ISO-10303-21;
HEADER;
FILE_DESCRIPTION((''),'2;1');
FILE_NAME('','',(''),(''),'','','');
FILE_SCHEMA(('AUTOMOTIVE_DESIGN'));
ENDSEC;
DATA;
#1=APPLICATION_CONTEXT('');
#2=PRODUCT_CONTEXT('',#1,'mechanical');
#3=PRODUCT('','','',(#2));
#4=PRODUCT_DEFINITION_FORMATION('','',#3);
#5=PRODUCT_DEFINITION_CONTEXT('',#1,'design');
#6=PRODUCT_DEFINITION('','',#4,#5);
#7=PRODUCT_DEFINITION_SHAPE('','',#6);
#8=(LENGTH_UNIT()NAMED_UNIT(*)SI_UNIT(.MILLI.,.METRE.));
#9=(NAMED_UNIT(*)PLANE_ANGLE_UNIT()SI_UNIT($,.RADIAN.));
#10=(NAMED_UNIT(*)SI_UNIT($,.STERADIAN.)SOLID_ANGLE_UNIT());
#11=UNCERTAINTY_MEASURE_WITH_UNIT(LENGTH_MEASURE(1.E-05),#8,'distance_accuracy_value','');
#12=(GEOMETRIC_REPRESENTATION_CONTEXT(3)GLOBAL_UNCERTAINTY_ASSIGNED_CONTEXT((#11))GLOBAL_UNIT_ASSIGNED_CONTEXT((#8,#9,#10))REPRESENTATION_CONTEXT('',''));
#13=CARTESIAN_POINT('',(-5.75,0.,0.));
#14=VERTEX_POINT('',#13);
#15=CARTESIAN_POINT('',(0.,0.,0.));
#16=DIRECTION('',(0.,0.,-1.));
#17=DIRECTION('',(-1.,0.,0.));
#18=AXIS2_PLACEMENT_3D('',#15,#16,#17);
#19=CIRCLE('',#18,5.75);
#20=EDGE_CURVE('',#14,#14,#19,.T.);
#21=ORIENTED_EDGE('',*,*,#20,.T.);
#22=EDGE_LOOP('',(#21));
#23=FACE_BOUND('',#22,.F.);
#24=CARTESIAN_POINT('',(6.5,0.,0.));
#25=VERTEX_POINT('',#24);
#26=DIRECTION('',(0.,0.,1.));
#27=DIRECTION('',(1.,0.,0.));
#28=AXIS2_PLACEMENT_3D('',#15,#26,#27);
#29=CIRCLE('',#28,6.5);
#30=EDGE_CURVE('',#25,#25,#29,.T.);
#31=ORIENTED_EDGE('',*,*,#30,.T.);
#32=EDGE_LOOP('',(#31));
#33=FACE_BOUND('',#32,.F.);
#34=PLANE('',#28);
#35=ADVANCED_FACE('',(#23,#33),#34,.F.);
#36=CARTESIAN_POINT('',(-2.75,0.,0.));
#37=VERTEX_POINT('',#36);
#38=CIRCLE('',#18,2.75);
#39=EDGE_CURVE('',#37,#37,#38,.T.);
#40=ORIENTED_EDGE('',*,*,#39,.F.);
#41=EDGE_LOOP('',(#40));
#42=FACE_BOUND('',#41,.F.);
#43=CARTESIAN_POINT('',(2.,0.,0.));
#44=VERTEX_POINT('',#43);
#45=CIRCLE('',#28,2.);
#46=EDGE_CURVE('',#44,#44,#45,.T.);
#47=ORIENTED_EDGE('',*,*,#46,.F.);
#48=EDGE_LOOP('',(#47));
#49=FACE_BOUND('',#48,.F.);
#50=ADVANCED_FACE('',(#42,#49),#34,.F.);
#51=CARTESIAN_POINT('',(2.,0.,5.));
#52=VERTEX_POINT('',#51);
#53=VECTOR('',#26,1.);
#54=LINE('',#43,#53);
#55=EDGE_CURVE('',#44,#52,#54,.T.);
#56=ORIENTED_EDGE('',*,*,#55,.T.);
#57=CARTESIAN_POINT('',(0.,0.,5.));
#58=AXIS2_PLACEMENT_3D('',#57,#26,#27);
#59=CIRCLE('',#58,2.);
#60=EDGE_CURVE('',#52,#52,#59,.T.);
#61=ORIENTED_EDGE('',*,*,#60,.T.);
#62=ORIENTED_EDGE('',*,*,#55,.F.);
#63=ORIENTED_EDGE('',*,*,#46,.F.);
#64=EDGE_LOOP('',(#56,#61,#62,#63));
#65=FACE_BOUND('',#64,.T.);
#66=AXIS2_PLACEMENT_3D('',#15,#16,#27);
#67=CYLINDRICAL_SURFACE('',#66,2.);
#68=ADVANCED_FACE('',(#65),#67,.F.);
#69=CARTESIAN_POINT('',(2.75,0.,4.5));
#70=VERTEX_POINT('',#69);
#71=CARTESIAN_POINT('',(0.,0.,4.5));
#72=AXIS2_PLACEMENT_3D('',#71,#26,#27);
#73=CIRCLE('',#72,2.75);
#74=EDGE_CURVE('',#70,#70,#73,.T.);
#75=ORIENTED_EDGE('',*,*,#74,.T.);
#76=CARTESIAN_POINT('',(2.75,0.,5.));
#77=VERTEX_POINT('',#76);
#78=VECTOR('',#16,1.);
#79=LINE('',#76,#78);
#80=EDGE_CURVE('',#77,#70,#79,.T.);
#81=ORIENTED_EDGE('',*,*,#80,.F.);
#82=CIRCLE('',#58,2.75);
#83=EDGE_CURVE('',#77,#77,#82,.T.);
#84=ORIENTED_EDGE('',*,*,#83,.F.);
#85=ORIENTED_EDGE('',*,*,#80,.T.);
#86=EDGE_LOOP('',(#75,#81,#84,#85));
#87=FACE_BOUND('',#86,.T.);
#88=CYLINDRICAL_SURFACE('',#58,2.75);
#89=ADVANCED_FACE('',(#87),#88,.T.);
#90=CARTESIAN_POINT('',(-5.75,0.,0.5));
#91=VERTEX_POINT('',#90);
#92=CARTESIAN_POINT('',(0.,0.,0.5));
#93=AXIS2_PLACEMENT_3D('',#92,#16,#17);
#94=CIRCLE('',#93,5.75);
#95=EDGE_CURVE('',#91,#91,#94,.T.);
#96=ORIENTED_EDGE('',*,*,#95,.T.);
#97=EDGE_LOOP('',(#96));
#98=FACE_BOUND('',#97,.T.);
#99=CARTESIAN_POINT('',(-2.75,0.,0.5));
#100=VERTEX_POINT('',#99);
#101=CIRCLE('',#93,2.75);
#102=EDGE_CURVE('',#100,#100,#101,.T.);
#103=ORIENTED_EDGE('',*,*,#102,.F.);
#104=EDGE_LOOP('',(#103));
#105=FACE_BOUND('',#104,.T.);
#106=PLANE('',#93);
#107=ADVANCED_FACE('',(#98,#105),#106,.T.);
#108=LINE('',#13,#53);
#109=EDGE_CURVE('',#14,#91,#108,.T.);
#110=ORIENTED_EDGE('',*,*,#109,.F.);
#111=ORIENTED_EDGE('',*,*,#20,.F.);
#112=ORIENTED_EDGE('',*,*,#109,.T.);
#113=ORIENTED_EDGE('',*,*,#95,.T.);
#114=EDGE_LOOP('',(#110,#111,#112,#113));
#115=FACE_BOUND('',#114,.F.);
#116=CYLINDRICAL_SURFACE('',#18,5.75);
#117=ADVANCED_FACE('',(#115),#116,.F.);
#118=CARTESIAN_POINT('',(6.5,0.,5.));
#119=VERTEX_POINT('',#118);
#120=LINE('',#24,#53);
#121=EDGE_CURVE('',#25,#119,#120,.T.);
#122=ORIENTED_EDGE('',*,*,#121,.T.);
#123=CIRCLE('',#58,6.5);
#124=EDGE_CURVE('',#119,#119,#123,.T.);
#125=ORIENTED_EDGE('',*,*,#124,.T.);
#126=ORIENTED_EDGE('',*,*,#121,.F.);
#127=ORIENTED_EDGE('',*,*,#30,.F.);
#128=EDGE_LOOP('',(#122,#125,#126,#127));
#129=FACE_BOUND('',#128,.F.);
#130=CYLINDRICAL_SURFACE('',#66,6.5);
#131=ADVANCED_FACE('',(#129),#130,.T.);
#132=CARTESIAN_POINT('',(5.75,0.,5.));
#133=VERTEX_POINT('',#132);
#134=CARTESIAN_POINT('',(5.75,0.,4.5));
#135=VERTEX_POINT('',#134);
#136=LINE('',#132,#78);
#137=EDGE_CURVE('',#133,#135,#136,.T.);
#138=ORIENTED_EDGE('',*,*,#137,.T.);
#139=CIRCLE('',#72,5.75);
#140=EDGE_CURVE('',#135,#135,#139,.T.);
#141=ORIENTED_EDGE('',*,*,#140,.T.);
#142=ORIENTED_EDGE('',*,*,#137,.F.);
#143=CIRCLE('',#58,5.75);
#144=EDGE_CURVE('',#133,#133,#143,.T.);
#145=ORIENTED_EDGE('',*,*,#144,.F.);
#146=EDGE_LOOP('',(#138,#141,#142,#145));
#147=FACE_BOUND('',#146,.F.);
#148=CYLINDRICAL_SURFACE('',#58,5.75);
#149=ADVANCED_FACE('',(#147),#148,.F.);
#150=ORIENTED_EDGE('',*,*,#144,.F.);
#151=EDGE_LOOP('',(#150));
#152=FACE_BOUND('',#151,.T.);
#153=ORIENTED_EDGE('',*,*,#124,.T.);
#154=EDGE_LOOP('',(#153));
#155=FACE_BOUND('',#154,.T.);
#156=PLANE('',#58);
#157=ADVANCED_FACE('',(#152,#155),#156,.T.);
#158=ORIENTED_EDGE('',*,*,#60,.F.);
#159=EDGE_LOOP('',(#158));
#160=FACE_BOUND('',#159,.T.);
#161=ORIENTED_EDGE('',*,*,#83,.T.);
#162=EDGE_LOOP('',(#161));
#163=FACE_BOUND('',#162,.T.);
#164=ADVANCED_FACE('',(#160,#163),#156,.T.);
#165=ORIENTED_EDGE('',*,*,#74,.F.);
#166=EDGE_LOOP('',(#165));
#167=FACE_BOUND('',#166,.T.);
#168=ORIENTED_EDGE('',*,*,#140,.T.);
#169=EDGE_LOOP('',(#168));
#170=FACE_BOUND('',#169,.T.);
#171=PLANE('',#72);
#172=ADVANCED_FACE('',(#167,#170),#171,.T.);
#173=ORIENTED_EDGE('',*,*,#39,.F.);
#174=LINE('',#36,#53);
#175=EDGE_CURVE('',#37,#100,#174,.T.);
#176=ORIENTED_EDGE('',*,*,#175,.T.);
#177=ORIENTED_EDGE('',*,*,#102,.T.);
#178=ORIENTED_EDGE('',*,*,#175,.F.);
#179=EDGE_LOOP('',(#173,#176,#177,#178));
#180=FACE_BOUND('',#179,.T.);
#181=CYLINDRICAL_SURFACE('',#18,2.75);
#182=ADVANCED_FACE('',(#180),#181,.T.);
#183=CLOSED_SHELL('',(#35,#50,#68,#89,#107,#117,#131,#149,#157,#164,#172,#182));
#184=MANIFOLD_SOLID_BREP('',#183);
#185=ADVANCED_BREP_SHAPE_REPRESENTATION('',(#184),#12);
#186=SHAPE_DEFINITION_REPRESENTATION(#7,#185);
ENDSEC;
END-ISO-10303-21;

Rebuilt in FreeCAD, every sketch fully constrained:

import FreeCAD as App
import Part
import Sketcher

V = App.Vector
Q = App.Units.Quantity

doc = App.newDocument("Part")
params = doc.addObject("Spreadsheet::Sheet", "Params")
for row, (alias, value) in enumerate([
    ("sketch1_diameter", "13 mm"),
    ("sketch1_diameter2", "4 mm"),
    ("pad1_length", "5 mm"),
    ("sketch2_diameter", "11.5 mm"),
    ("sketch2_diameter2", "5.5 mm"),
    ("pocket1_length", "0.5 mm"),
    ("sketch3_diameter", "11.5 mm"),
    ("sketch3_diameter2", "5.5 mm"),
    ("pocket2_length", "0.5 mm"),
], start=1):
    params.set(f"A{row}", alias)
    params.set(f"B{row}", "=" + value)
    params.setAlias(f"B{row}", alias)

body = doc.addObject("PartDesign::Body", "Body")

# Sketch on XY plane
sketch1 = body.newObject("Sketcher::SketchObject", "Sketch")
sketch1.AttachmentSupport = (doc.getObject("XY_Plane"), [""])
sketch1.MapMode = "FlatFace"
sketch1.addGeometry([
    Part.Circle(V(0, 0, 0), V(0, 0, 1), 6.5),
    Part.Circle(V(0, 0, 0), V(0, 0, 1), 2),
], False)
sketch1.addConstraint([
    Sketcher.Constraint("Coincident", 0, 3, -1, 1),
    Sketcher.Constraint("Coincident", 1, 3, -1, 1),
    Sketcher.Constraint("Diameter", 0, Q("13 mm")),
    Sketcher.Constraint("Diameter", 1, Q("4 mm")),
])
sketch1.setExpression("Constraints[2]", "Params.sketch1_diameter")
sketch1.setExpression("Constraints[3]", "Params.sketch1_diameter2")
pad1 = body.newObject("PartDesign::Pad", "Pad")
pad1.Profile = sketch1
pad1.setExpression("Length", "Params.pad1_length")

# Sketch on XY plane
sketch2 = body.newObject("Sketcher::SketchObject", "Sketch001")
sketch2.AttachmentSupport = (doc.getObject("XY_Plane"), [""])
sketch2.MapMode = "FlatFace"
sketch2.AttachmentOffset = App.Placement(V(0, 0, 5), App.Rotation())
sketch2.addGeometry([
    Part.Circle(V(0, 0, 0), V(0, 0, 1), 5.8),
    Part.Circle(V(0, 0, 0), V(0, 0, 1), 2.8),
], False)
sketch2.addConstraint([
    Sketcher.Constraint("Coincident", 0, 3, -1, 1),
    Sketcher.Constraint("Coincident", 1, 3, -1, 1),
    Sketcher.Constraint("Diameter", 0, Q("11.5 mm")),
    Sketcher.Constraint("Diameter", 1, Q("5.5 mm")),
])
sketch2.setExpression("Constraints[2]", "Params.sketch2_diameter")
sketch2.setExpression("Constraints[3]", "Params.sketch2_diameter2")
pocket1 = body.newObject("PartDesign::Pocket", "Pocket")
pocket1.Profile = sketch2
pocket1.setExpression("Length", "Params.pocket1_length")

# Sketch on XY plane
sketch3 = body.newObject("Sketcher::SketchObject", "Sketch002")
sketch3.AttachmentSupport = (doc.getObject("XY_Plane"), [""])
sketch3.MapMode = "FlatFace"
sketch3.addGeometry([
    Part.Circle(V(0, 0, 0), V(0, 0, 1), 5.8),
    Part.Circle(V(0, 0, 0), V(0, 0, 1), 2.8),
], False)
sketch3.addConstraint([
    Sketcher.Constraint("Coincident", 0, 3, -1, 1),
    Sketcher.Constraint("Coincident", 1, 3, -1, 1),
    Sketcher.Constraint("Diameter", 0, Q("11.5 mm")),
    Sketcher.Constraint("Diameter", 1, Q("5.5 mm")),
])
sketch3.setExpression("Constraints[2]", "Params.sketch3_diameter")
sketch3.setExpression("Constraints[3]", "Params.sketch3_diameter2")
pocket2 = body.newObject("PartDesign::Pocket", "Pocket001")
pocket2.Profile = sketch3
pocket2.setExpression("Length", "Params.pocket2_length")
pocket2.Reversed = True

doc.recompute()
